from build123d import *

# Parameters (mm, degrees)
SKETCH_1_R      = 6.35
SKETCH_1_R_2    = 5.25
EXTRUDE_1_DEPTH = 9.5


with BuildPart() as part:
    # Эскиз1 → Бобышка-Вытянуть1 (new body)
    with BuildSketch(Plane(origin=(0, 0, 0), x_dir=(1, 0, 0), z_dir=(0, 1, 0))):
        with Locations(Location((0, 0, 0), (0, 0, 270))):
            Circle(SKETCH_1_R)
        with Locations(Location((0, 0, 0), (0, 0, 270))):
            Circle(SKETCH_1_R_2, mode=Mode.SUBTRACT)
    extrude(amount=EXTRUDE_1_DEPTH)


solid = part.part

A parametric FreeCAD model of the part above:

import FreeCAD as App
import Part
import Sketcher
from FreeCAD import Vector
Q = App.Units.Quantity

doc = App.newDocument("Part")
body = doc.addObject("PartDesign::Body", "Body")

sketch1 = body.newObject("Sketcher::SketchObject", "Sketch")
sketch1.AttachmentSupport = (doc.getObject("XZ_Plane"), [""])
sketch1.MapMode = "FlatFace"
sketch1.addGeometry([
    Part.Circle(Vector(0, 0, 0), Vector(0, 0, 1), 6.35),
    Part.Circle(Vector(0, 0, 0), Vector(0, 0, 1), 5.25),
], False)
sketch1.addConstraint([
    Sketcher.Constraint("Coincident", 0, 3, -1, 1),
    Sketcher.Constraint("Coincident", 1, 3, -1, 1),
    Sketcher.Constraint("Diameter", 0, Q("12.7 mm")),
    Sketcher.Constraint("Diameter", 1, Q("10.5 mm")),
])
pad1 = body.newObject("PartDesign::Pad", "Pad")
pad1.Profile = sketch1
pad1.Length = 9.5
pad1.Reversed = True

doc.recompute()
